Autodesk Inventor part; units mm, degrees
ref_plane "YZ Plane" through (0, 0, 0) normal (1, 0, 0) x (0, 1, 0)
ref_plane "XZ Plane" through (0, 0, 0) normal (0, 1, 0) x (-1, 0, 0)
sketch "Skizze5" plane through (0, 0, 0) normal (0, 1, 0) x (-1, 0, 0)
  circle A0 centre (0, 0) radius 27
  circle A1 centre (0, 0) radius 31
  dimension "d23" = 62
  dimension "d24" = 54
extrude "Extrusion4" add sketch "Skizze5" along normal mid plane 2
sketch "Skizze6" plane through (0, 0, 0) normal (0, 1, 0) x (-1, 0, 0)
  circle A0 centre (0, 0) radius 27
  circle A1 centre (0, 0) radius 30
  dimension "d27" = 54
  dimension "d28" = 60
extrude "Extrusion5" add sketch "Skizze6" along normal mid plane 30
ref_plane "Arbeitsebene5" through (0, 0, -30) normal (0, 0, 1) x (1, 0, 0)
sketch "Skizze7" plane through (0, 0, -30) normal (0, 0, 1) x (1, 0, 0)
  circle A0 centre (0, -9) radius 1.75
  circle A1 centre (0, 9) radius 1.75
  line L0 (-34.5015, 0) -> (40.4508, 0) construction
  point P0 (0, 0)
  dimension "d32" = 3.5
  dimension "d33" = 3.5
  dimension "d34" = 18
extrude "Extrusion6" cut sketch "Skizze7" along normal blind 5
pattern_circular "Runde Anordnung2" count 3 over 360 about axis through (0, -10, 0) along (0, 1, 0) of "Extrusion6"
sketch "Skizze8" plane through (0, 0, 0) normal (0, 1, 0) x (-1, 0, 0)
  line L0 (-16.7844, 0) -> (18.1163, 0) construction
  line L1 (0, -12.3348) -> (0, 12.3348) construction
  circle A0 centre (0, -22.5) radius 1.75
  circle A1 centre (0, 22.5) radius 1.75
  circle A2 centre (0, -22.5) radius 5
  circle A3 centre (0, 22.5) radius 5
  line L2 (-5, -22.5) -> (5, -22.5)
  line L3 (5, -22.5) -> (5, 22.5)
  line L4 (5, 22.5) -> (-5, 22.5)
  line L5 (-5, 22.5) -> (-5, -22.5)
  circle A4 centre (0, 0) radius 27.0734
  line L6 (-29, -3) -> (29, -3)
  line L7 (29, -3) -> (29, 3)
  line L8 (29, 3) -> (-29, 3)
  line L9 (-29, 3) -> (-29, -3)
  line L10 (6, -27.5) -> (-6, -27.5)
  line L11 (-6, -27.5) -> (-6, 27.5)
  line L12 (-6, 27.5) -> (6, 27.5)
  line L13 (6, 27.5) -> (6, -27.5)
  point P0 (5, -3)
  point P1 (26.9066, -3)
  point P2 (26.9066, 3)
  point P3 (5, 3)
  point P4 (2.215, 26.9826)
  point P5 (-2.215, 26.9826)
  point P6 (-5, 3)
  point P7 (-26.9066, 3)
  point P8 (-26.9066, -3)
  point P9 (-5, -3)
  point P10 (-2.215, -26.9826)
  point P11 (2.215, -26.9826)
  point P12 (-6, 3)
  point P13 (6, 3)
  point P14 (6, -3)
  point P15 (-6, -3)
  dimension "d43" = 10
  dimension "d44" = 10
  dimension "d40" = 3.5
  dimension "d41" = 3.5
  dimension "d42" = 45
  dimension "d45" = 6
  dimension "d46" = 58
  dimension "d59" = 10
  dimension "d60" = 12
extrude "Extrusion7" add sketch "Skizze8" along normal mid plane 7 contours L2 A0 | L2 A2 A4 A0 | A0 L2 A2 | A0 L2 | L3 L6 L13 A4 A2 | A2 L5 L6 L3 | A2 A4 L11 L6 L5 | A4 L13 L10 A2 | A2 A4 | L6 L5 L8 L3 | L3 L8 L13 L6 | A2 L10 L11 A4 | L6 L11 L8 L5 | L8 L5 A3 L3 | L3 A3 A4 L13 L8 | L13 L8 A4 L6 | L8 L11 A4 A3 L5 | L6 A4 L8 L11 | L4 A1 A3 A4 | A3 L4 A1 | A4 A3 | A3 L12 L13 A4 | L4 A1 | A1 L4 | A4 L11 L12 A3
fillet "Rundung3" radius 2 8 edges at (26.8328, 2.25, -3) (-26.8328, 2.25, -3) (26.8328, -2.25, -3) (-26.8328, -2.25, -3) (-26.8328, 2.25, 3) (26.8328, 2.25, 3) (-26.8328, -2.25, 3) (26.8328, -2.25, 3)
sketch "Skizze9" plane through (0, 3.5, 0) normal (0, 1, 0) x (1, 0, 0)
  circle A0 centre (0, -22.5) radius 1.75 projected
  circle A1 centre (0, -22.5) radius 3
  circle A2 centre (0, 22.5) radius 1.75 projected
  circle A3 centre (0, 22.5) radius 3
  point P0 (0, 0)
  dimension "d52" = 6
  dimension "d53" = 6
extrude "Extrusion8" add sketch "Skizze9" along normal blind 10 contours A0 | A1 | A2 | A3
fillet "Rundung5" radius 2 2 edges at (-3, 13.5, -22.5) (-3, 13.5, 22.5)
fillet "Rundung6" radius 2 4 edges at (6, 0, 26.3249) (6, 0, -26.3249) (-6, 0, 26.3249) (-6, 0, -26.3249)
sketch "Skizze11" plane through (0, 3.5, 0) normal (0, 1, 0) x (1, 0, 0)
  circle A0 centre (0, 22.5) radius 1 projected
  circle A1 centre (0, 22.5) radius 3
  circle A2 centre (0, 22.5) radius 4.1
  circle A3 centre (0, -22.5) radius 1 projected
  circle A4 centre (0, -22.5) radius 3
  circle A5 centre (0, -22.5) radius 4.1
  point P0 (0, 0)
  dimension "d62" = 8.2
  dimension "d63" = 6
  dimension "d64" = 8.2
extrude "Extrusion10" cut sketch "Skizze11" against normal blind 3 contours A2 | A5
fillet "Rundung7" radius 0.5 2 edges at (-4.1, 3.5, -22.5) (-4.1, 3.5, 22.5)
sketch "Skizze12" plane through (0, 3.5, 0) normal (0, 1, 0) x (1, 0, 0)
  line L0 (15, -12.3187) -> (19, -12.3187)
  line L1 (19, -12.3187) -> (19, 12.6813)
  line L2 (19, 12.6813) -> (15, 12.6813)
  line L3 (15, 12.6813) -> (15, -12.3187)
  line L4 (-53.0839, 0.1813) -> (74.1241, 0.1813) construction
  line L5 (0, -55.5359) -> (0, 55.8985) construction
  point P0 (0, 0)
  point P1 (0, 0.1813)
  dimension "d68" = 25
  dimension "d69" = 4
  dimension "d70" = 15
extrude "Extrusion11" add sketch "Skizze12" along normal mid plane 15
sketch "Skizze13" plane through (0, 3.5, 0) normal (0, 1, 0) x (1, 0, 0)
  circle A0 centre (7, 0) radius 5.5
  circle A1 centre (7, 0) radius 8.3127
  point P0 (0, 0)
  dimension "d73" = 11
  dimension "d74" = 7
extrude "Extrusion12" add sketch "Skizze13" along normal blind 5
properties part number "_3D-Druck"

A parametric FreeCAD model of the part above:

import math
import FreeCAD as App
import Part
import Sketcher
Q = App.Units.Quantity


def edges_at(feature, points):
    """Names of the edges that pass closest to the given points."""
    edges = feature.Shape.Edges
    near = lambda p: min(range(len(edges)), key=lambda i: edges[i].distToShape(Part.Vertex(*p))[0])
    return sorted({f"Edge{near(p) + 1}" for p in points})


def add_polygon(sketch, points):
    """Adds a closed chain of lines whose ends are joined by coincident constraints."""
    first, n = sketch.GeometryCount, len(points)
    for a, b in zip(points, points[1:] + points[:1]):
        sketch.addGeometry(Part.LineSegment(App.Vector(*a, 0), App.Vector(*b, 0)), False)
    for i in range(n):
        sketch.addConstraint(Sketcher.Constraint("Coincident", first + i, 2, first + (i + 1) % n, 1))

doc = App.newDocument("Part")
body = doc.addObject("PartDesign::Body", "Body")

# Sketch on XZ plane
sketch1 = doc.addObject("Sketcher::SketchObject", "Sketch")
body.addObject(sketch1)
sketch1.AttachmentSupport = (doc.XZ_Plane, [""])
sketch1.MapMode = "FlatFace"
sketch1.addGeometry(Part.Circle(App.Vector(0, 0, 0), App.Vector(0, 0, 1), 31), False)
sketch1.addGeometry(Part.Circle(App.Vector(0, 0, 0), App.Vector(0, 0, 1), 27), False)
sketch1.addConstraint(Sketcher.Constraint("Coincident", 0, 3, -1, 1))
sketch1.addConstraint(Sketcher.Constraint("Coincident", 1, 3, -1, 1))
sketch1.addConstraint(Sketcher.Constraint("Diameter", 0, Q("62 mm")))
sketch1.addConstraint(Sketcher.Constraint("Diameter", 1, Q("54 mm")))
pad1 = doc.addObject("PartDesign::Pad", "Pad")
body.addObject(pad1)
pad1.Profile = sketch1
pad1.Length = 2
pad1.Midplane = True

# Sketch on XZ plane
sketch2 = doc.addObject("Sketcher::SketchObject", "Sketch001")
body.addObject(sketch2)
sketch2.AttachmentSupport = (doc.XZ_Plane, [""])
sketch2.MapMode = "FlatFace"
sketch2.addGeometry(Part.Circle(App.Vector(0, 0, 0), App.Vector(0, 0, 1), 30), False)
sketch2.addGeometry(Part.Circle(App.Vector(0, 0, 0), App.Vector(0, 0, 1), 27), False)
sketch2.addConstraint(Sketcher.Constraint("Coincident", 0, 3, -1, 1))
sketch2.addConstraint(Sketcher.Constraint("Coincident", 1, 3, -1, 1))
sketch2.addConstraint(Sketcher.Constraint("Diameter", 0, Q("60 mm")))
sketch2.addConstraint(Sketcher.Constraint("Diameter", 1, Q("54 mm")))
pad2 = doc.addObject("PartDesign::Pad", "Pad001")
body.addObject(pad2)
pad2.Profile = sketch2
pad2.Length = 30
pad2.Midplane = True

# Sketch on XY plane
sketch3 = doc.addObject("Sketcher::SketchObject", "Sketch002")
body.addObject(sketch3)
sketch3.AttachmentSupport = (doc.XY_Plane, [""])
sketch3.MapMode = "FlatFace"
sketch3.AttachmentOffset = App.Placement(App.Vector(0, 0, -30), App.Rotation())
sketch3.addGeometry(Part.Circle(App.Vector(0, -9, 0), App.Vector(0, 0, 1), 1.75), False)
sketch3.addGeometry(Part.Circle(App.Vector(0, 9, 0), App.Vector(0, 0, 1), 1.75), False)
sketch3.addConstraint(Sketcher.Constraint("Equal", 0, 1))
sketch3.addConstraint(Sketcher.Constraint("Symmetric", 0, 3, 1, 3, -1, 1))
sketch3.addConstraint(Sketcher.Constraint("PointOnObject", 0, 3, -2))
sketch3.addConstraint(Sketcher.Constraint("Diameter", 0, Q("3.5 mm")))
sketch3.addConstraint(Sketcher.Constraint("DistanceY", 0, 3, 1, 3, Q("18 mm")))
pocket1 = doc.addObject("PartDesign::Pocket", "Pocket")
body.addObject(pocket1)
pocket1.Profile = sketch3
pocket1.Length = 5
pocket1.Reversed = True
doc.recompute()

polarpattern = doc.addObject("PartDesign::PolarPattern", "PolarPattern")
body.addObject(polarpattern)
polarpattern.Originals = [pocket1]
polarpattern.Axis = (doc.Y_Axis, [""])
polarpattern.Angle = 360
polarpattern.Occurrences = 3
body.Tip = polarpattern

# Sketch on XZ plane
sketch4 = doc.addObject("Sketcher::SketchObject", "Sketch003")
body.addObject(sketch4)
sketch4.AttachmentSupport = (doc.XZ_Plane, [""])
sketch4.MapMode = "FlatFace"
sketch4.addGeometry(Part.LineSegment(App.Vector(6, -3, 0), App.Vector(6, -27.5, 0)), False)
sketch4.addGeometry(Part.LineSegment(App.Vector(6, -27.5, 0), App.Vector(-6, -27.5, 0)), False)
sketch4.addGeometry(Part.LineSegment(App.Vector(-6, -27.5, 0), App.Vector(-6, -3, 0)), False)
sketch4.addGeometry(Part.LineSegment(App.Vector(-6, -3, 0), App.Vector(-26.906672, -3, 0)), False)
sketch4.addGeometry(Part.ArcOfCircle(Part.Circle(App.Vector(0, 0, 0), App.Vector(0, 0, 1), 27.0734), math.radians(173.637997), math.radians(186.362003)), False)
sketch4.addGeometry(Part.LineSegment(App.Vector(-26.906672, 3, 0), App.Vector(-6, 3, 0)), False)
sketch4.addGeometry(Part.LineSegment(App.Vector(-6, 3, 0), App.Vector(-6, 27.5, 0)), False)
sketch4.addGeometry(Part.LineSegment(App.Vector(-6, 27.5, 0), App.Vector(6, 27.5, 0)), False)
sketch4.addGeometry(Part.LineSegment(App.Vector(6, 27.5, 0), App.Vector(6, 3, 0)), False)
sketch4.addGeometry(Part.LineSegment(App.Vector(6, 3, 0), App.Vector(26.906672, 3, 0)), False)
sketch4.addGeometry(Part.ArcOfCircle(Part.Circle(App.Vector(0, 0, 0), App.Vector(0, 0, 1), 27.0734), math.radians(-6.362003), math.radians(6.362003)), False)
sketch4.addGeometry(Part.LineSegment(App.Vector(26.906672, -3, 0), App.Vector(6, -3, 0)), False)
sketch4.addConstraint(Sketcher.Constraint("Coincident", 0, 2, 1, 1))
sketch4.addConstraint(Sketcher.Constraint("Coincident", 1, 2, 2, 1))
sketch4.addConstraint(Sketcher.Constraint("Coincident", 2, 2, 3, 1))
sketch4.addConstraint(Sketcher.Constraint("Coincident", 3, 2, 4, 2))
sketch4.addConstraint(Sketcher.Constraint("Coincident", 4, 1, 5, 1))
sketch4.addConstraint(Sketcher.Constraint("Coincident", 5, 2, 6, 1))
sketch4.addConstraint(Sketcher.Constraint("Coincident", 6, 2, 7, 1))
sketch4.addConstraint(Sketcher.Constraint("Coincident", 7, 2, 8, 1))
sketch4.addConstraint(Sketcher.Constraint("Coincident", 8, 2, 9, 1))
sketch4.addConstraint(Sketcher.Constraint("Coincident", 9, 2, 10, 2))
sketch4.addConstraint(Sketcher.Constraint("Coincident", 10, 1, 11, 1))
sketch4.addConstraint(Sketcher.Constraint("Coincident", 11, 2, 0, 1))
sketch4.addConstraint(Sketcher.Constraint("Vertical", 0))
sketch4.addConstraint(Sketcher.Constraint("Horizontal", 1))
sketch4.addConstraint(Sketcher.Constraint("Vertical", 2))
sketch4.addConstraint(Sketcher.Constraint("Horizontal", 3))
sketch4.addConstraint(Sketcher.Constraint("Horizontal", 5))
sketch4.addConstraint(Sketcher.Constraint("Vertical", 6))
sketch4.addConstraint(Sketcher.Constraint("Horizontal", 7))
sketch4.addConstraint(Sketcher.Constraint("Vertical", 8))
sketch4.addConstraint(Sketcher.Constraint("Horizontal", 9))
sketch4.addConstraint(Sketcher.Constraint("Horizontal", 11))
sketch4.addConstraint(Sketcher.Constraint("Coincident", 4, 3, -1, 1))
sketch4.addConstraint(Sketcher.Constraint("Coincident", 10, 3, -1, 1))
sketch4.addConstraint(Sketcher.Constraint("Equal", 4, 10))
sketch4.addConstraint(Sketcher.Constraint("Symmetric", 0, 2, 6, 2, -1, 1))
sketch4.addConstraint(Sketcher.Constraint("Symmetric", 2, 2, 8, 2, -1, 1))
sketch4.addConstraint(Sketcher.Constraint("Symmetric", 5, 2, 8, 2, -2))
sketch4.addConstraint(Sketcher.Constraint("Horizontal", 3, 2, 10, 1))
sketch4.addConstraint(Sketcher.Constraint("DistanceX", 1, 2, 1, 1, Q("12 mm")))
sketch4.addConstraint(Sketcher.Constraint("DistanceY", 3, 2, 4, 1, Q("6 mm")))
sketch4.addConstraint(Sketcher.Constraint("DistanceY", 0, 2, 0, 1, Q("24.5 mm")))
sketch4.addConstraint(Sketcher.Constraint("Radius", 4, Q("27.0734 mm")))
pad3 = doc.addObject("PartDesign::Pad", "Pad002")
body.addObject(pad3)
pad3.Profile = sketch4
pad3.Length = 7
pad3.Midplane = True
doc.recompute()

fillet = doc.addObject("PartDesign::Fillet", "Fillet")
body.addObject(fillet)
fillet.Base = (pad3, edges_at(pad3, [
    (26.833, 2.25, -3),
    (-26.833, 2.25, -3),
    (26.833, -2.25, -3),
    (-26.833, -2.25, -3),
    (-26.833, 2.25, 3),
    (26.833, 2.25, 3),
    (-26.833, -2.25, 3),
    (26.833, -2.25, 3),
]))
fillet.Radius = 2

# Sketch on XZ plane
sketch5 = doc.addObject("Sketcher::SketchObject", "Sketch004")
body.addObject(sketch5)
sketch5.AttachmentSupport = (doc.XZ_Plane, [""])
sketch5.MapMode = "FlatFace"
sketch5.AttachmentOffset = App.Placement(App.Vector(0, 0, -3.5), App.Rotation())
sketch5.addGeometry(Part.Circle(App.Vector(0, 22.5, 0), App.Vector(0, 0, 1), 3), False)
sketch5.addGeometry(Part.Circle(App.Vector(0, -22.5, 0), App.Vector(0, 0, 1), 3), False)
sketch5.addConstraint(Sketcher.Constraint("Equal", 0, 1))
sketch5.addConstraint(Sketcher.Constraint("Symmetric", 0, 3, 1, 3, -1, 1))
sketch5.addConstraint(Sketcher.Constraint("PointOnObject", 0, 3, -2))
sketch5.addConstraint(Sketcher.Constraint("Diameter", 0, Q("6 mm")))
sketch5.addConstraint(Sketcher.Constraint("DistanceY", 1, 3, 0, 3, Q("45 mm")))
pad4 = doc.addObject("PartDesign::Pad", "Pad003")
body.addObject(pad4)
pad4.Profile = sketch5
pad4.Length = 10
pad4.Reversed = True
doc.recompute()

fillet2 = doc.addObject("PartDesign::Fillet", "Fillet001")
body.addObject(fillet2)
fillet2.Base = (pad4, edges_at(pad4, [(-3, 13.5, -22.5), (-3, 13.5, 22.5)]))
fillet2.Radius = 2
doc.recompute()

fillet3 = doc.addObject("PartDesign::Fillet", "Fillet002")
body.addObject(fillet3)
fillet3.Base = (fillet2, edges_at(fillet2, [
    (6, 0, 26.325),
    (6, 0, -26.325),
    (-6, 0, 26.325),
    (-6, 0, -26.325),
]))
fillet3.Radius = 2

# Sketch on XZ plane
sketch6 = doc.addObject("Sketcher::SketchObject", "Sketch005")
body.addObject(sketch6)
sketch6.AttachmentSupport = (doc.XZ_Plane, [""])
sketch6.MapMode = "FlatFace"
sketch6.AttachmentOffset = App.Placement(App.Vector(0, 0, -3.5), App.Rotation())
sketch6.addGeometry(Part.Circle(App.Vector(0, -22.5, 0), App.Vector(0, 0, 1), 4.1), False)
sketch6.addGeometry(Part.Circle(App.Vector(0, -22.5, 0), App.Vector(0, 0, 1), 3), False)
sketch6.addGeometry(Part.Circle(App.Vector(0, 22.5, 0), App.Vector(0, 0, 1), 4.1), False)
sketch6.addGeometry(Part.Circle(App.Vector(0, 22.5, 0), App.Vector(0, 0, 1), 3), False)
sketch6.addConstraint(Sketcher.Constraint("Coincident", 1, 3, 0, 3))
sketch6.addConstraint(Sketcher.Constraint("Coincident", 3, 3, 2, 3))
sketch6.addConstraint(Sketcher.Constraint("Equal", 0, 2))
sketch6.addConstraint(Sketcher.Constraint("Equal", 1, 3))
sketch6.addConstraint(Sketcher.Constraint("Symmetric", 0, 3, 2, 3, -1, 1))
sketch6.addConstraint(Sketcher.Constraint("PointOnObject", 0, 3, -2))
sketch6.addConstraint(Sketcher.Constraint("Diameter", 1, Q("6 mm")))
sketch6.addConstraint(Sketcher.Constraint("Diameter", 0, Q("8.2 mm")))
sketch6.addConstraint(Sketcher.Constraint("DistanceY", 0, 3, 2, 3, Q("45 mm")))
pocket2 = doc.addObject("PartDesign::Pocket", "Pocket001")
body.addObject(pocket2)
pocket2.Profile = sketch6
pocket2.Length = 3
pocket2.Reversed = True
doc.recompute()

fillet4 = doc.addObject("PartDesign::Fillet", "Fillet003")
body.addObject(fillet4)
fillet4.Base = (pocket2, edges_at(pocket2, [(-4.1, 3.5, -22.5), (-4.1, 3.5, 22.5)]))
fillet4.Radius = 0.5

# Sketch on XZ plane
sketch7 = doc.addObject("Sketcher::SketchObject", "Sketch006")
body.addObject(sketch7)
sketch7.AttachmentSupport = (doc.XZ_Plane, [""])
sketch7.MapMode = "FlatFace"
sketch7.AttachmentOffset = App.Placement(App.Vector(0, 0, -3.5), App.Rotation())
add_polygon(sketch7, [(15, -12.6813), (15, 12.3187), (19, 12.3187), (19, -12.6813)])  # lines 0-3
sketch7.addConstraint(Sketcher.Constraint("Vertical", 0))
sketch7.addConstraint(Sketcher.Constraint("Horizontal", 1))
sketch7.addConstraint(Sketcher.Constraint("Vertical", 2))
sketch7.addConstraint(Sketcher.Constraint("Horizontal", 3))
sketch7.addConstraint(Sketcher.Constraint("DistanceX", 1, 1, 1, 2, Q("4 mm")))
sketch7.addConstraint(Sketcher.Constraint("DistanceY", 0, 1, 0, 2, Q("25 mm")))
sketch7.addConstraint(Sketcher.Constraint("DistanceX", -1, 1, 0, 2, Q("15 mm")))
sketch7.addConstraint(Sketcher.Constraint("DistanceY", -1, 1, 0, 2, Q("12.3187 mm")))
pad5 = doc.addObject("PartDesign::Pad", "Pad004")
body.addObject(pad5)
pad5.Profile = sketch7
pad5.Length = 15
pad5.Midplane = True

# Sketch on XZ plane
sketch8 = doc.addObject("Sketcher::SketchObject", "Sketch007")
body.addObject(sketch8)
sketch8.AttachmentSupport = (doc.XZ_Plane, [""])
sketch8.MapMode = "FlatFace"
sketch8.AttachmentOffset = App.Placement(App.Vector(0, 0, -3.5), App.Rotation())
sketch8.addGeometry(Part.Circle(App.Vector(7, 0, 0), App.Vector(0, 0, 1), 8.3127), False)
sketch8.addGeometry(Part.Circle(App.Vector(7, 0, 0), App.Vector(0, 0, 1), 5.5), False)
sketch8.addConstraint(Sketcher.Constraint("Coincident", 1, 3, 0, 3))
sketch8.addConstraint(Sketcher.Constraint("PointOnObject", 0, 3, -1))
sketch8.addConstraint(Sketcher.Constraint("Diameter", 1, Q("11 mm")))
sketch8.addConstraint(Sketcher.Constraint("DistanceX", -1, 1, 0, 3, Q("7 mm")))
sketch8.addConstraint(Sketcher.Constraint("Diameter", 0, Q("16.6254 mm")))
pad6 = doc.addObject("PartDesign::Pad", "Pad005")
body.addObject(pad6)
pad6.Profile = sketch8
pad6.Length = 5
pad6.Reversed = True

doc.recompute()
